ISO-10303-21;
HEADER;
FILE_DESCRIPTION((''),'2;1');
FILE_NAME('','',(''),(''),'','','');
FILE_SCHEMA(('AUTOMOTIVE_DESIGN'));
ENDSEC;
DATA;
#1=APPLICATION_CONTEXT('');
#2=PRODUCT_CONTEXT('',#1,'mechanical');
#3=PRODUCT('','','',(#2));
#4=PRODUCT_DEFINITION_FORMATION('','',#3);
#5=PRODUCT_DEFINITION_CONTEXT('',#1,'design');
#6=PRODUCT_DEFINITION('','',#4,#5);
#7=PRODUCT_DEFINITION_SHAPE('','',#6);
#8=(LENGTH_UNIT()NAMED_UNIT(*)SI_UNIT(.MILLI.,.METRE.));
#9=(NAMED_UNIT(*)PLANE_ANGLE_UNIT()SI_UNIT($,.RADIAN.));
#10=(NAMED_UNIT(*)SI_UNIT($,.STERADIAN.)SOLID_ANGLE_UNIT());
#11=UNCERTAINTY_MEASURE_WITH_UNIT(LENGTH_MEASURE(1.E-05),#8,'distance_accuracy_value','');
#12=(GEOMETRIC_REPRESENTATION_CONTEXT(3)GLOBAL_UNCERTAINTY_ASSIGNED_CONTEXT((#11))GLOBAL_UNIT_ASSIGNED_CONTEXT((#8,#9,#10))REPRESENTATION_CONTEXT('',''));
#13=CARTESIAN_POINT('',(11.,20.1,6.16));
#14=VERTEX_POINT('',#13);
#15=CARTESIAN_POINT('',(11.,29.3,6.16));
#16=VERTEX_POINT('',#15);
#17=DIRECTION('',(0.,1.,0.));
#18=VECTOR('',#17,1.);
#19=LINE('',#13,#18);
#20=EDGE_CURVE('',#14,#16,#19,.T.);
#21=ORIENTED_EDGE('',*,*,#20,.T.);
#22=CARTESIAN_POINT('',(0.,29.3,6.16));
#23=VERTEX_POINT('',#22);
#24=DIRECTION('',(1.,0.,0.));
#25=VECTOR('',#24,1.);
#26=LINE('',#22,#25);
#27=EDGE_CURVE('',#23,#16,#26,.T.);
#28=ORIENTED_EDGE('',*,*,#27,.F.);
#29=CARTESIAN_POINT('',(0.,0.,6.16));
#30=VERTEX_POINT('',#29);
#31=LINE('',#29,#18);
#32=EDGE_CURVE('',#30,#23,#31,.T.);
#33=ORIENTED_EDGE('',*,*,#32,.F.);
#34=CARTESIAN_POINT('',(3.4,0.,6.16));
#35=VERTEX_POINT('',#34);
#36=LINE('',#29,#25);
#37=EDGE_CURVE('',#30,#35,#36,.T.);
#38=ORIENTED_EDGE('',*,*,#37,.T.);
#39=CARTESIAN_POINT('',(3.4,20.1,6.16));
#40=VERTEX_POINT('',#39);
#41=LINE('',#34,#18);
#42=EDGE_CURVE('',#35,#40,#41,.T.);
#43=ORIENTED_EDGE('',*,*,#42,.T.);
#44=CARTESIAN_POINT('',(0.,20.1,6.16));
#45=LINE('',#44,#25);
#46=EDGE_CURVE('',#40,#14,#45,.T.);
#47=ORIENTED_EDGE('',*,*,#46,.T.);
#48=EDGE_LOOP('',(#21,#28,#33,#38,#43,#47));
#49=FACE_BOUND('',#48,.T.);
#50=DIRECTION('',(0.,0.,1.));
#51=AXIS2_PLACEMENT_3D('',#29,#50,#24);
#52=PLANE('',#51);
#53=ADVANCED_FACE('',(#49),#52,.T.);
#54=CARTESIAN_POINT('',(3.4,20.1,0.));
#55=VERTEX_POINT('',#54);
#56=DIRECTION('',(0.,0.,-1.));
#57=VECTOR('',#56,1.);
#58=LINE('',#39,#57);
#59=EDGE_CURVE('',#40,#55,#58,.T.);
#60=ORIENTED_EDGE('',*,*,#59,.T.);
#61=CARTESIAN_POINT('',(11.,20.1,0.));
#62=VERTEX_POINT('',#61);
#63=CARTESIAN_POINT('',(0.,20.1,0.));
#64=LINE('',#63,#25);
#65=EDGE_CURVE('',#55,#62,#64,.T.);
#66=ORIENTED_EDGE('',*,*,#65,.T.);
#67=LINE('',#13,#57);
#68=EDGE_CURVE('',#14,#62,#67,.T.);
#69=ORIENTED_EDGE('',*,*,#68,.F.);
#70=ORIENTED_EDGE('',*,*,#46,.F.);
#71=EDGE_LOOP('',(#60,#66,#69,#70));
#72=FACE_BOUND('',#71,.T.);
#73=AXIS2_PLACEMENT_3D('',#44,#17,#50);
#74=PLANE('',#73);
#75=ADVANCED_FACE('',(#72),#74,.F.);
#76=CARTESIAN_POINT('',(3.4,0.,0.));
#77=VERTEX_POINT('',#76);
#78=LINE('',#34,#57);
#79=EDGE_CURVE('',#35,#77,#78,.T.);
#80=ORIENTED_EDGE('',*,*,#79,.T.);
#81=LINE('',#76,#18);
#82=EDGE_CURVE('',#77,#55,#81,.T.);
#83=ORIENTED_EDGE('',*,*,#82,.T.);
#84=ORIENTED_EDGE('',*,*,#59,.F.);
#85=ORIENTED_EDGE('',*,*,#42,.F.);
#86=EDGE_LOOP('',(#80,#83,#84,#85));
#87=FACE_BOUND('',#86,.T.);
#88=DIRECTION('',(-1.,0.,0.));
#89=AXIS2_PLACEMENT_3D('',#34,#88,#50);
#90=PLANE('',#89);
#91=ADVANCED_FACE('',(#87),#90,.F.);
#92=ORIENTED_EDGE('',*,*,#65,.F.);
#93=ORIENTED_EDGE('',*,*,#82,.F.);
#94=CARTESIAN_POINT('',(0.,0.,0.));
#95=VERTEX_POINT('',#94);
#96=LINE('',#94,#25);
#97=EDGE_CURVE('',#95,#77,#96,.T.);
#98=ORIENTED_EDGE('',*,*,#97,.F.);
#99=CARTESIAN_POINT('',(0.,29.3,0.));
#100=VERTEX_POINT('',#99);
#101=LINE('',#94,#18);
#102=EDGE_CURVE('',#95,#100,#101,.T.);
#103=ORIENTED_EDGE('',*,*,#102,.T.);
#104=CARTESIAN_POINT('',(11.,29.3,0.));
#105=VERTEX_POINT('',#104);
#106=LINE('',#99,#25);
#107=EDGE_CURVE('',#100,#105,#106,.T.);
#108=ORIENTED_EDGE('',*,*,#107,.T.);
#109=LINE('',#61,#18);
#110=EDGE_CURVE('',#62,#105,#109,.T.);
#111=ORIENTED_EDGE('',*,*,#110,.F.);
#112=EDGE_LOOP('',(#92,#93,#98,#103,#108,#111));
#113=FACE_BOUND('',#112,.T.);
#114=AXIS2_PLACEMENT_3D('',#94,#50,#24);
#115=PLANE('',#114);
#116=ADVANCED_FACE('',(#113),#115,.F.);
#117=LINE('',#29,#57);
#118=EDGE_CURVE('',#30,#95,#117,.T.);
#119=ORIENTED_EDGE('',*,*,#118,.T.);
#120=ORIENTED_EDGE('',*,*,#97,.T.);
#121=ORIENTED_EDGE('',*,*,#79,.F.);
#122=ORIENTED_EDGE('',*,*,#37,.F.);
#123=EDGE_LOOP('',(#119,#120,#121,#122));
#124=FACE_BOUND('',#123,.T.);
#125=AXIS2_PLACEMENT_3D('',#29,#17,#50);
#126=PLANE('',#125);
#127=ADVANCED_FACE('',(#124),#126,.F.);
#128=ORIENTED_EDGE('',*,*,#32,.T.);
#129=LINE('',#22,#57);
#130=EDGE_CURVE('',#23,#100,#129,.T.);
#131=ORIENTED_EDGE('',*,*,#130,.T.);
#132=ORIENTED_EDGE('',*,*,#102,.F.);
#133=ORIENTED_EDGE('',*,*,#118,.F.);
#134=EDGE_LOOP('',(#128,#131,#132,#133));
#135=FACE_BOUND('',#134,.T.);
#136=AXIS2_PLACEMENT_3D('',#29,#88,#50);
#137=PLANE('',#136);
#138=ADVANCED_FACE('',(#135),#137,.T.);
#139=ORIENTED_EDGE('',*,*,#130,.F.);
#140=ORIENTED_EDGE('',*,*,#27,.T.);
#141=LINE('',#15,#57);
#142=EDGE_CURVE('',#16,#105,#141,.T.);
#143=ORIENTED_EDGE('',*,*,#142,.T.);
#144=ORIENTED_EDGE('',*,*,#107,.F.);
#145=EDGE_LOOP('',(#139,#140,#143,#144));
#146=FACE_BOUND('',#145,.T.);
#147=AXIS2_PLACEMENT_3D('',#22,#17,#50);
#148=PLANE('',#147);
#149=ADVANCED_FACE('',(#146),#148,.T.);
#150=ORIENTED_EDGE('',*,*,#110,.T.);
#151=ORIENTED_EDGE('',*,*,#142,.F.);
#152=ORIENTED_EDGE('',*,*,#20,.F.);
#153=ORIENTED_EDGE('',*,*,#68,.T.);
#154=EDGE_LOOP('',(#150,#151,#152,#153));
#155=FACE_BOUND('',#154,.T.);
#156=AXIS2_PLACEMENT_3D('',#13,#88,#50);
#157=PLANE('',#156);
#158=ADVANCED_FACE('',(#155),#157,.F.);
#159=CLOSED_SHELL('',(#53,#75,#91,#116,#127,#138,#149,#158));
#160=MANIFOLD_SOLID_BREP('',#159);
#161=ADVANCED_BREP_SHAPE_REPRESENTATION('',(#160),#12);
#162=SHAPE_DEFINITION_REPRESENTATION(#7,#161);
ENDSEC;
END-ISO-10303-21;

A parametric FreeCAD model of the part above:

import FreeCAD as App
import Part
import Sketcher
Q = App.Units.Quantity

doc = App.newDocument("Part")
body = doc.addObject("PartDesign::Body", "Body")

# Sketch on XY plane
sketch1 = doc.addObject("Sketcher::SketchObject", "Sketch")
body.addObject(sketch1)
sketch1.AttachmentSupport = (doc.XY_Plane, [""])
sketch1.MapMode = "FlatFace"
sketch1.addGeometry(Part.LineSegment(App.Vector(0, 0, 0), App.Vector(3.4, 0, 0)), False)
sketch1.addGeometry(Part.LineSegment(App.Vector(3.4, 0, 0), App.Vector(3.4, 20.1, 0)), False)
sketch1.addGeometry(Part.LineSegment(App.Vector(3.4, 20.1, 0), App.Vector(11, 20.1, 0)), False)
sketch1.addGeometry(Part.LineSegment(App.Vector(11, 20.1, 0), App.Vector(11, 29.3, 0)), False)
sketch1.addGeometry(Part.LineSegment(App.Vector(11, 29.3, 0), App.Vector(0, 29.3, 0)), False)
sketch1.addGeometry(Part.LineSegment(App.Vector(0, 29.3, 0), App.Vector(0, 0, 0)), False)
sketch1.addConstraint(Sketcher.Constraint("Coincident", 0, 2, 1, 1))
sketch1.addConstraint(Sketcher.Constraint("Coincident", 1, 2, 2, 1))
sketch1.addConstraint(Sketcher.Constraint("Coincident", 2, 2, 3, 1))
sketch1.addConstraint(Sketcher.Constraint("Coincident", 3, 2, 4, 1))
sketch1.addConstraint(Sketcher.Constraint("Coincident", 4, 2, 5, 1))
sketch1.addConstraint(Sketcher.Constraint("Coincident", 5, 2, 0, 1))
sketch1.addConstraint(Sketcher.Constraint("Horizontal", 0))
sketch1.addConstraint(Sketcher.Constraint("Vertical", 1))
sketch1.addConstraint(Sketcher.Constraint("Horizontal", 2))
sketch1.addConstraint(Sketcher.Constraint("Vertical", 3))
sketch1.addConstraint(Sketcher.Constraint("Horizontal", 4))
sketch1.addConstraint(Sketcher.Constraint("Vertical", 5))
sketch1.addConstraint(Sketcher.Constraint("Coincident", 5, 2, -1, 1))
sketch1.addConstraint(Sketcher.Constraint("DistanceX", 4, 2, 4, 1, Q("11 mm")))
sketch1.addConstraint(Sketcher.Constraint("DistanceX", 0, 1, 0, 2, Q("3.4 mm")))
sketch1.addConstraint(Sketcher.Constraint("DistanceY", 1, 1, 1, 2, Q("20.1 mm")))
sketch1.addConstraint(Sketcher.Constraint("DistanceY", 3, 1, 3, 2, Q("9.2 mm")))
pad1 = doc.addObject("PartDesign::Pad", "Pad")
body.addObject(pad1)
pad1.Profile = sketch1
pad1.Length = 6.16

doc.recompute()
